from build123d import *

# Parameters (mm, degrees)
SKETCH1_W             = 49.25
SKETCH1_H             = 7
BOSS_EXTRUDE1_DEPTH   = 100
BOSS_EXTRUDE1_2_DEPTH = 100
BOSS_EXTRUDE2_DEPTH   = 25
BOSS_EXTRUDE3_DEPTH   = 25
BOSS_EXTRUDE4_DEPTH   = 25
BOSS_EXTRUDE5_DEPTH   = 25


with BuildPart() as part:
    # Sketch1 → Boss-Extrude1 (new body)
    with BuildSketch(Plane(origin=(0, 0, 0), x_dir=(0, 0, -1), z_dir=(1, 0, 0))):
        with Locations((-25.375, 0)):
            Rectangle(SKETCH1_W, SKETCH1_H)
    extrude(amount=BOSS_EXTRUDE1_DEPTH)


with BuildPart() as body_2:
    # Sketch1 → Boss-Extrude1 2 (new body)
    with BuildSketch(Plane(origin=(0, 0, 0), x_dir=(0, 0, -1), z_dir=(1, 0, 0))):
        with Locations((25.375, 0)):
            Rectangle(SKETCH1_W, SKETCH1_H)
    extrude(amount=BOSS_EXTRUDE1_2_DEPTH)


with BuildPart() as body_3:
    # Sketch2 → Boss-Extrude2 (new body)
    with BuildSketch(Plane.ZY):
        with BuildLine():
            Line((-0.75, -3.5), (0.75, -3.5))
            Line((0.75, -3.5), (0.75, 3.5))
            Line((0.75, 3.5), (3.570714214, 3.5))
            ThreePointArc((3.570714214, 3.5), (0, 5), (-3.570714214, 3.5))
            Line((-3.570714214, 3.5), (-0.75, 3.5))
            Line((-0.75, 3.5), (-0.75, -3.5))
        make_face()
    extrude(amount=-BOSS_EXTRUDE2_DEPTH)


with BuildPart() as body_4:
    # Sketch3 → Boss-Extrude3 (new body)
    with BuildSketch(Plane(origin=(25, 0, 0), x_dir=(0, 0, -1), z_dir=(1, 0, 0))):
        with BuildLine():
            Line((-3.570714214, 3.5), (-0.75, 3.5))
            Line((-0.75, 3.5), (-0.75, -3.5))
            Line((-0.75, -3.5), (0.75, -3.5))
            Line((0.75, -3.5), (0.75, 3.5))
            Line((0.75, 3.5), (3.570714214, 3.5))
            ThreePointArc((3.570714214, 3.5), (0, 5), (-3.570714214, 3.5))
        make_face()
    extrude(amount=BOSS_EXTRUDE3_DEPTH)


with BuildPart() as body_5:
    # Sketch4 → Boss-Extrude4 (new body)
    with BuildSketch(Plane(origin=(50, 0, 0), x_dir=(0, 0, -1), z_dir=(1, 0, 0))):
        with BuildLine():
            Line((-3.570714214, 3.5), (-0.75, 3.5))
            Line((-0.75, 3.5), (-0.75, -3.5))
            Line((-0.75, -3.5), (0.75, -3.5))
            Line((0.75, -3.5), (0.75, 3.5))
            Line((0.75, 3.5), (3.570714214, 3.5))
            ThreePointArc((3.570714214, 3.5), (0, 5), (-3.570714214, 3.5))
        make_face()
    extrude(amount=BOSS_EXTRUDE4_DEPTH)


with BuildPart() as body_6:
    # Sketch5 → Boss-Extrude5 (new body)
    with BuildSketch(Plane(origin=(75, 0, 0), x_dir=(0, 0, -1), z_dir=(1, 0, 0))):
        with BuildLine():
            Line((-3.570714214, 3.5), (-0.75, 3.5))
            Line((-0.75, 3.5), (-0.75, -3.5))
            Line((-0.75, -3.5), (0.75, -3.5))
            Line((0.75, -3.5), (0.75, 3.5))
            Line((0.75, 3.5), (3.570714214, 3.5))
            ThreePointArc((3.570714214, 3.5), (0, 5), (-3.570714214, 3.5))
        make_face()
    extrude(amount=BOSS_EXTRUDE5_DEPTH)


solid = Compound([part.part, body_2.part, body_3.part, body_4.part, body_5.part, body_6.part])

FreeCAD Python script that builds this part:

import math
import FreeCAD as App
import Part
import Sketcher
Q = App.Units.Quantity

doc = App.newDocument("Part")
body = doc.addObject("PartDesign::Body", "Body")

sketch1 = body.newObject("Sketcher::SketchObject", "Sketch")
sketch1.AttachmentSupport = (doc.getObject("YZ_Plane"), [""])
sketch1.MapMode = "FlatFace"
sketch1.addGeometry([
    Part.LineSegment(App.Vector(4, 50, 0), App.Vector(-4, 50, 0)),
    Part.LineSegment(App.Vector(-4, 50, 0), App.Vector(-4, 1, 0)),
    Part.LineSegment(App.Vector(-4, 1, 0), App.Vector(4, 1, 0)),
    Part.LineSegment(App.Vector(4, 1, 0), App.Vector(4, 50, 0)),
], False)
sketch1.addConstraint([
    Sketcher.Constraint("Coincident", 0, 2, 1, 1),
    Sketcher.Constraint("Coincident", 1, 2, 2, 1),
    Sketcher.Constraint("Coincident", 2, 2, 3, 1),
    Sketcher.Constraint("Coincident", 3, 2, 0, 1),
    Sketcher.Constraint("Horizontal", 0),
    Sketcher.Constraint("Vertical", 1),
    Sketcher.Constraint("Horizontal", 2),
    Sketcher.Constraint("Vertical", 3),
    Sketcher.Constraint("DistanceX", 0, 2, 0, 1, Q("7 mm")),
    Sketcher.Constraint("DistanceY", -1, 1, 0, 2, Q("50 mm")),
    Sketcher.Constraint("DistanceY", 1, 2, 1, 1, Q("49.25 mm")),
    Sketcher.Constraint("DistanceX", 0, 2, -1, 1, Q("3.5 mm")),
])
pad1 = body.newObject("PartDesign::Pad", "Pad")
pad1.Profile = sketch1
pad1.Length = 100
body2 = doc.addObject("PartDesign::Body", "Body001")

sketch2 = body2.newObject("Sketcher::SketchObject", "Sketch001")
sketch2.AttachmentSupport = (doc.getObject("YZ_Plane001"), [""])
sketch2.MapMode = "FlatFace"
sketch2.addGeometry([
    Part.LineSegment(App.Vector(4, -1, 0), App.Vector(-4, -1, 0)),
    Part.LineSegment(App.Vector(-4, -1, 0), App.Vector(-4, -50, 0)),
    Part.LineSegment(App.Vector(-4, -50, 0), App.Vector(4, -50, 0)),
    Part.LineSegment(App.Vector(4, -50, 0), App.Vector(4, -1, 0)),
], False)
sketch2.addConstraint([
    Sketcher.Constraint("Coincident", 0, 2, 1, 1),
    Sketcher.Constraint("Coincident", 1, 2, 2, 1),
    Sketcher.Constraint("Coincident", 2, 2, 3, 1),
    Sketcher.Constraint("Coincident", 3, 2, 0, 1),
    Sketcher.Constraint("Horizontal", 0),
    Sketcher.Constraint("Vertical", 1),
    Sketcher.Constraint("Horizontal", 2),
    Sketcher.Constraint("Vertical", 3),
    Sketcher.Constraint("DistanceX", 0, 2, 0, 1, Q("7 mm")),
    Sketcher.Constraint("DistanceY", 1, 2, -1, 1, Q("50 mm")),
    Sketcher.Constraint("DistanceY", 1, 2, 1, 1, Q("49.25 mm")),
    Sketcher.Constraint("DistanceX", 0, 2, -1, 1, Q("3.5 mm")),
])
pad2 = body2.newObject("PartDesign::Pad", "Pad001")
pad2.Profile = sketch2
pad2.Length = 100
body3 = doc.addObject("PartDesign::Body", "Body002")

sketch3 = body3.newObject("Sketcher::SketchObject", "Sketch002")
sketch3.AttachmentSupport = (doc.getObject("YZ_Plane002"), [""])
sketch3.MapMode = "FlatFace"
sketch3.addGeometry([
    Part.LineSegment(App.Vector(-3.5, -0.8, 0), App.Vector(-3.5, 0.8, 0)),
    Part.LineSegment(App.Vector(-3.5, 0.8, 0), App.Vector(3.5, 0.8, 0)),
    Part.LineSegment(App.Vector(3.5, 0.8, 0), App.Vector(3.5, 3.6, 0)),
    Part.ArcOfCircle(Part.Circle(App.Vector(0, 0, 0), App.Vector(0, 0, 1), 5), math.radians(-46), math.radians(46)),
    Part.LineSegment(App.Vector(3.5, -3.6, 0), App.Vector(3.5, -0.8, 0)),
    Part.LineSegment(App.Vector(3.5, -0.8, 0), App.Vector(-3.5, -0.8, 0)),
], False)
sketch3.addConstraint([
    Sketcher.Constraint("Coincident", 0, 2, 1, 1),
    Sketcher.Constraint("Coincident", 1, 2, 2, 1),
    Sketcher.Constraint("Coincident", 2, 2, 3, 2),
    Sketcher.Constraint("Coincident", 3, 1, 4, 1),
    Sketcher.Constraint("Coincident", 4, 2, 5, 1),
    Sketcher.Constraint("Coincident", 5, 2, 0, 1),
    Sketcher.Constraint("Vertical", 0),
    Sketcher.Constraint("Horizontal", 1),
    Sketcher.Constraint("Vertical", 2),
    Sketcher.Constraint("Vertical", 4),
    Sketcher.Constraint("Horizontal", 5),
    Sketcher.Constraint("Coincident", 3, 3, -1, 1),
    Sketcher.Constraint("Symmetric", 0, 2, 4, 2, -1, 1),
    Sketcher.Constraint("Vertical", 2, 2, 3, 1),
    Sketcher.Constraint("Radius", 3, Q("5 mm")),
    Sketcher.Constraint("DistanceX", 1, 1, 1, 2, Q("7 mm")),
    Sketcher.Constraint("DistanceY", 0, 1, 0, 2, Q("1.5 mm")),
])
pad3 = body3.newObject("PartDesign::Pad", "Pad002")
pad3.Profile = sketch3
pad3.Length = 25
body4 = doc.addObject("PartDesign::Body", "Body003")

sketch4 = body4.newObject("Sketcher::SketchObject", "Sketch003")
sketch4.AttachmentSupport = (doc.getObject("YZ_Plane003"), [""])
sketch4.MapMode = "FlatFace"
sketch4.AttachmentOffset = App.Placement(App.Vector(0, 0, 25), App.Rotation())
sketch4.addGeometry([
    Part.LineSegment(App.Vector(3.5, 3.6, 0), App.Vector(3.5, 0.8, 0)),
    Part.LineSegment(App.Vector(3.5, 0.8, 0), App.Vector(-3.5, 0.8, 0)),
    Part.LineSegment(App.Vector(-3.5, 0.8, 0), App.Vector(-3.5, -0.8, 0)),
    Part.LineSegment(App.Vector(-3.5, -0.8, 0), App.Vector(3.5, -0.8, 0)),
    Part.LineSegment(App.Vector(3.5, -0.8, 0), App.Vector(3.5, -3.6, 0)),
    Part.ArcOfCircle(Part.Circle(App.Vector(0, 0, 0), App.Vector(0, 0, 1), 5), math.radians(-46), math.radians(46)),
], False)
sketch4.addConstraint([
    Sketcher.Constraint("Coincident", 0, 2, 1, 1),
    Sketcher.Constraint("Coincident", 1, 2, 2, 1),
    Sketcher.Constraint("Coincident", 2, 2, 3, 1),
    Sketcher.Constraint("Coincident", 3, 2, 4, 1),
    Sketcher.Constraint("Coincident", 4, 2, 5, 1),
    Sketcher.Constraint("Coincident", 5, 2, 0, 1),
    Sketcher.Constraint("Vertical", 0),
    Sketcher.Constraint("Horizontal", 1),
    Sketcher.Constraint("Vertical", 2),
    Sketcher.Constraint("Horizontal", 3),
    Sketcher.Constraint("Vertical", 4),
    Sketcher.Constraint("Coincident", 5, 3, -1, 1),
    Sketcher.Constraint("Symmetric", 0, 2, 2, 2, -1, 1),
    Sketcher.Constraint("Vertical", 0, 2, 3, 2),
    Sketcher.Constraint("Radius", 5, Q("5 mm")),
    Sketcher.Constraint("DistanceX", 1, 2, 1, 1, Q("7 mm")),
    Sketcher.Constraint("DistanceY", 2, 2, 2, 1, Q("1.5 mm")),
])
pad4 = body4.newObject("PartDesign::Pad", "Pad003")
pad4.Profile = sketch4
pad4.Length = 25
body5 = doc.addObject("PartDesign::Body", "Body004")

sketch5 = body5.newObject("Sketcher::SketchObject", "Sketch004")
sketch5.AttachmentSupport = (doc.getObject("YZ_Plane004"), [""])
sketch5.MapMode = "FlatFace"
sketch5.AttachmentOffset = App.Placement(App.Vector(0, 0, 50), App.Rotation())
sketch5.addGeometry([
    Part.LineSegment(App.Vector(3.5, 3.6, 0), App.Vector(3.5, 0.8, 0)),
    Part.LineSegment(App.Vector(3.5, 0.8, 0), App.Vector(-3.5, 0.8, 0)),
    Part.LineSegment(App.Vector(-3.5, 0.8, 0), App.Vector(-3.5, -0.8, 0)),
    Part.LineSegment(App.Vector(-3.5, -0.8, 0), App.Vector(3.5, -0.8, 0)),
    Part.LineSegment(App.Vector(3.5, -0.8, 0), App.Vector(3.5, -3.6, 0)),
    Part.ArcOfCircle(Part.Circle(App.Vector(0, 0, 0), App.Vector(0, 0, 1), 5), math.radians(-46), math.radians(46)),
], False)
sketch5.addConstraint([
    Sketcher.Constraint("Coincident", 0, 2, 1, 1),
    Sketcher.Constraint("Coincident", 1, 2, 2, 1),
    Sketcher.Constraint("Coincident", 2, 2, 3, 1),
    Sketcher.Constraint("Coincident", 3, 2, 4, 1),
    Sketcher.Constraint("Coincident", 4, 2, 5, 1),
    Sketcher.Constraint("Coincident", 5, 2, 0, 1),
    Sketcher.Constraint("Vertical", 0),
    Sketcher.Constraint("Horizontal", 1),
    Sketcher.Constraint("Vertical", 2),
    Sketcher.Constraint("Horizontal", 3),
    Sketcher.Constraint("Vertical", 4),
    Sketcher.Constraint("Coincident", 5, 3, -1, 1),
    Sketcher.Constraint("Symmetric", 0, 2, 2, 2, -1, 1),
    Sketcher.Constraint("Vertical", 0, 2, 3, 2),
    Sketcher.Constraint("Radius", 5, Q("5 mm")),
    Sketcher.Constraint("DistanceX", 1, 2, 1, 1, Q("7 mm")),
    Sketcher.Constraint("DistanceY", 2, 2, 2, 1, Q("1.5 mm")),
])
pad5 = body5.newObject("PartDesign::Pad", "Pad004")
pad5.Profile = sketch5
pad5.Length = 25
body6 = doc.addObject("PartDesign::Body", "Body005")

sketch6 = body6.newObject("Sketcher::SketchObject", "Sketch005")
sketch6.AttachmentSupport = (doc.getObject("YZ_Plane005"), [""])
sketch6.MapMode = "FlatFace"
sketch6.AttachmentOffset = App.Placement(App.Vector(0, 0, 75), App.Rotation())
sketch6.addGeometry([
    Part.LineSegment(App.Vector(3.5, 3.6, 0), App.Vector(3.5, 0.8, 0)),
    Part.LineSegment(App.Vector(3.5, 0.8, 0), App.Vector(-3.5, 0.8, 0)),
    Part.LineSegment(App.Vector(-3.5, 0.8, 0), App.Vector(-3.5, -0.8, 0)),
    Part.LineSegment(App.Vector(-3.5, -0.8, 0), App.Vector(3.5, -0.8, 0)),
    Part.LineSegment(App.Vector(3.5, -0.8, 0), App.Vector(3.5, -3.6, 0)),
    Part.ArcOfCircle(Part.Circle(App.Vector(0, 0, 0), App.Vector(0, 0, 1), 5), math.radians(-46), math.radians(46)),
], False)
sketch6.addConstraint([
    Sketcher.Constraint("Coincident", 0, 2, 1, 1),
    Sketcher.Constraint("Coincident", 1, 2, 2, 1),
    Sketcher.Constraint("Coincident", 2, 2, 3, 1),
    Sketcher.Constraint("Coincident", 3, 2, 4, 1),
    Sketcher.Constraint("Coincident", 4, 2, 5, 1),
    Sketcher.Constraint("Coincident", 5, 2, 0, 1),
    Sketcher.Constraint("Vertical", 0),
    Sketcher.Constraint("Horizontal", 1),
    Sketcher.Constraint("Vertical", 2),
    Sketcher.Constraint("Horizontal", 3),
    Sketcher.Constraint("Vertical", 4),
    Sketcher.Constraint("Coincident", 5, 3, -1, 1),
    Sketcher.Constraint("Symmetric", 0, 2, 2, 2, -1, 1),
    Sketcher.Constraint("Vertical", 0, 2, 3, 2),
    Sketcher.Constraint("Radius", 5, Q("5 mm")),
    Sketcher.Constraint("DistanceX", 1, 2, 1, 1, Q("7 mm")),
    Sketcher.Constraint("DistanceY", 2, 2, 2, 1, Q("1.5 mm")),
])
pad6 = body6.newObject("PartDesign::Pad", "Pad005")
pad6.Profile = sketch6
pad6.Length = 25

doc.recompute()
